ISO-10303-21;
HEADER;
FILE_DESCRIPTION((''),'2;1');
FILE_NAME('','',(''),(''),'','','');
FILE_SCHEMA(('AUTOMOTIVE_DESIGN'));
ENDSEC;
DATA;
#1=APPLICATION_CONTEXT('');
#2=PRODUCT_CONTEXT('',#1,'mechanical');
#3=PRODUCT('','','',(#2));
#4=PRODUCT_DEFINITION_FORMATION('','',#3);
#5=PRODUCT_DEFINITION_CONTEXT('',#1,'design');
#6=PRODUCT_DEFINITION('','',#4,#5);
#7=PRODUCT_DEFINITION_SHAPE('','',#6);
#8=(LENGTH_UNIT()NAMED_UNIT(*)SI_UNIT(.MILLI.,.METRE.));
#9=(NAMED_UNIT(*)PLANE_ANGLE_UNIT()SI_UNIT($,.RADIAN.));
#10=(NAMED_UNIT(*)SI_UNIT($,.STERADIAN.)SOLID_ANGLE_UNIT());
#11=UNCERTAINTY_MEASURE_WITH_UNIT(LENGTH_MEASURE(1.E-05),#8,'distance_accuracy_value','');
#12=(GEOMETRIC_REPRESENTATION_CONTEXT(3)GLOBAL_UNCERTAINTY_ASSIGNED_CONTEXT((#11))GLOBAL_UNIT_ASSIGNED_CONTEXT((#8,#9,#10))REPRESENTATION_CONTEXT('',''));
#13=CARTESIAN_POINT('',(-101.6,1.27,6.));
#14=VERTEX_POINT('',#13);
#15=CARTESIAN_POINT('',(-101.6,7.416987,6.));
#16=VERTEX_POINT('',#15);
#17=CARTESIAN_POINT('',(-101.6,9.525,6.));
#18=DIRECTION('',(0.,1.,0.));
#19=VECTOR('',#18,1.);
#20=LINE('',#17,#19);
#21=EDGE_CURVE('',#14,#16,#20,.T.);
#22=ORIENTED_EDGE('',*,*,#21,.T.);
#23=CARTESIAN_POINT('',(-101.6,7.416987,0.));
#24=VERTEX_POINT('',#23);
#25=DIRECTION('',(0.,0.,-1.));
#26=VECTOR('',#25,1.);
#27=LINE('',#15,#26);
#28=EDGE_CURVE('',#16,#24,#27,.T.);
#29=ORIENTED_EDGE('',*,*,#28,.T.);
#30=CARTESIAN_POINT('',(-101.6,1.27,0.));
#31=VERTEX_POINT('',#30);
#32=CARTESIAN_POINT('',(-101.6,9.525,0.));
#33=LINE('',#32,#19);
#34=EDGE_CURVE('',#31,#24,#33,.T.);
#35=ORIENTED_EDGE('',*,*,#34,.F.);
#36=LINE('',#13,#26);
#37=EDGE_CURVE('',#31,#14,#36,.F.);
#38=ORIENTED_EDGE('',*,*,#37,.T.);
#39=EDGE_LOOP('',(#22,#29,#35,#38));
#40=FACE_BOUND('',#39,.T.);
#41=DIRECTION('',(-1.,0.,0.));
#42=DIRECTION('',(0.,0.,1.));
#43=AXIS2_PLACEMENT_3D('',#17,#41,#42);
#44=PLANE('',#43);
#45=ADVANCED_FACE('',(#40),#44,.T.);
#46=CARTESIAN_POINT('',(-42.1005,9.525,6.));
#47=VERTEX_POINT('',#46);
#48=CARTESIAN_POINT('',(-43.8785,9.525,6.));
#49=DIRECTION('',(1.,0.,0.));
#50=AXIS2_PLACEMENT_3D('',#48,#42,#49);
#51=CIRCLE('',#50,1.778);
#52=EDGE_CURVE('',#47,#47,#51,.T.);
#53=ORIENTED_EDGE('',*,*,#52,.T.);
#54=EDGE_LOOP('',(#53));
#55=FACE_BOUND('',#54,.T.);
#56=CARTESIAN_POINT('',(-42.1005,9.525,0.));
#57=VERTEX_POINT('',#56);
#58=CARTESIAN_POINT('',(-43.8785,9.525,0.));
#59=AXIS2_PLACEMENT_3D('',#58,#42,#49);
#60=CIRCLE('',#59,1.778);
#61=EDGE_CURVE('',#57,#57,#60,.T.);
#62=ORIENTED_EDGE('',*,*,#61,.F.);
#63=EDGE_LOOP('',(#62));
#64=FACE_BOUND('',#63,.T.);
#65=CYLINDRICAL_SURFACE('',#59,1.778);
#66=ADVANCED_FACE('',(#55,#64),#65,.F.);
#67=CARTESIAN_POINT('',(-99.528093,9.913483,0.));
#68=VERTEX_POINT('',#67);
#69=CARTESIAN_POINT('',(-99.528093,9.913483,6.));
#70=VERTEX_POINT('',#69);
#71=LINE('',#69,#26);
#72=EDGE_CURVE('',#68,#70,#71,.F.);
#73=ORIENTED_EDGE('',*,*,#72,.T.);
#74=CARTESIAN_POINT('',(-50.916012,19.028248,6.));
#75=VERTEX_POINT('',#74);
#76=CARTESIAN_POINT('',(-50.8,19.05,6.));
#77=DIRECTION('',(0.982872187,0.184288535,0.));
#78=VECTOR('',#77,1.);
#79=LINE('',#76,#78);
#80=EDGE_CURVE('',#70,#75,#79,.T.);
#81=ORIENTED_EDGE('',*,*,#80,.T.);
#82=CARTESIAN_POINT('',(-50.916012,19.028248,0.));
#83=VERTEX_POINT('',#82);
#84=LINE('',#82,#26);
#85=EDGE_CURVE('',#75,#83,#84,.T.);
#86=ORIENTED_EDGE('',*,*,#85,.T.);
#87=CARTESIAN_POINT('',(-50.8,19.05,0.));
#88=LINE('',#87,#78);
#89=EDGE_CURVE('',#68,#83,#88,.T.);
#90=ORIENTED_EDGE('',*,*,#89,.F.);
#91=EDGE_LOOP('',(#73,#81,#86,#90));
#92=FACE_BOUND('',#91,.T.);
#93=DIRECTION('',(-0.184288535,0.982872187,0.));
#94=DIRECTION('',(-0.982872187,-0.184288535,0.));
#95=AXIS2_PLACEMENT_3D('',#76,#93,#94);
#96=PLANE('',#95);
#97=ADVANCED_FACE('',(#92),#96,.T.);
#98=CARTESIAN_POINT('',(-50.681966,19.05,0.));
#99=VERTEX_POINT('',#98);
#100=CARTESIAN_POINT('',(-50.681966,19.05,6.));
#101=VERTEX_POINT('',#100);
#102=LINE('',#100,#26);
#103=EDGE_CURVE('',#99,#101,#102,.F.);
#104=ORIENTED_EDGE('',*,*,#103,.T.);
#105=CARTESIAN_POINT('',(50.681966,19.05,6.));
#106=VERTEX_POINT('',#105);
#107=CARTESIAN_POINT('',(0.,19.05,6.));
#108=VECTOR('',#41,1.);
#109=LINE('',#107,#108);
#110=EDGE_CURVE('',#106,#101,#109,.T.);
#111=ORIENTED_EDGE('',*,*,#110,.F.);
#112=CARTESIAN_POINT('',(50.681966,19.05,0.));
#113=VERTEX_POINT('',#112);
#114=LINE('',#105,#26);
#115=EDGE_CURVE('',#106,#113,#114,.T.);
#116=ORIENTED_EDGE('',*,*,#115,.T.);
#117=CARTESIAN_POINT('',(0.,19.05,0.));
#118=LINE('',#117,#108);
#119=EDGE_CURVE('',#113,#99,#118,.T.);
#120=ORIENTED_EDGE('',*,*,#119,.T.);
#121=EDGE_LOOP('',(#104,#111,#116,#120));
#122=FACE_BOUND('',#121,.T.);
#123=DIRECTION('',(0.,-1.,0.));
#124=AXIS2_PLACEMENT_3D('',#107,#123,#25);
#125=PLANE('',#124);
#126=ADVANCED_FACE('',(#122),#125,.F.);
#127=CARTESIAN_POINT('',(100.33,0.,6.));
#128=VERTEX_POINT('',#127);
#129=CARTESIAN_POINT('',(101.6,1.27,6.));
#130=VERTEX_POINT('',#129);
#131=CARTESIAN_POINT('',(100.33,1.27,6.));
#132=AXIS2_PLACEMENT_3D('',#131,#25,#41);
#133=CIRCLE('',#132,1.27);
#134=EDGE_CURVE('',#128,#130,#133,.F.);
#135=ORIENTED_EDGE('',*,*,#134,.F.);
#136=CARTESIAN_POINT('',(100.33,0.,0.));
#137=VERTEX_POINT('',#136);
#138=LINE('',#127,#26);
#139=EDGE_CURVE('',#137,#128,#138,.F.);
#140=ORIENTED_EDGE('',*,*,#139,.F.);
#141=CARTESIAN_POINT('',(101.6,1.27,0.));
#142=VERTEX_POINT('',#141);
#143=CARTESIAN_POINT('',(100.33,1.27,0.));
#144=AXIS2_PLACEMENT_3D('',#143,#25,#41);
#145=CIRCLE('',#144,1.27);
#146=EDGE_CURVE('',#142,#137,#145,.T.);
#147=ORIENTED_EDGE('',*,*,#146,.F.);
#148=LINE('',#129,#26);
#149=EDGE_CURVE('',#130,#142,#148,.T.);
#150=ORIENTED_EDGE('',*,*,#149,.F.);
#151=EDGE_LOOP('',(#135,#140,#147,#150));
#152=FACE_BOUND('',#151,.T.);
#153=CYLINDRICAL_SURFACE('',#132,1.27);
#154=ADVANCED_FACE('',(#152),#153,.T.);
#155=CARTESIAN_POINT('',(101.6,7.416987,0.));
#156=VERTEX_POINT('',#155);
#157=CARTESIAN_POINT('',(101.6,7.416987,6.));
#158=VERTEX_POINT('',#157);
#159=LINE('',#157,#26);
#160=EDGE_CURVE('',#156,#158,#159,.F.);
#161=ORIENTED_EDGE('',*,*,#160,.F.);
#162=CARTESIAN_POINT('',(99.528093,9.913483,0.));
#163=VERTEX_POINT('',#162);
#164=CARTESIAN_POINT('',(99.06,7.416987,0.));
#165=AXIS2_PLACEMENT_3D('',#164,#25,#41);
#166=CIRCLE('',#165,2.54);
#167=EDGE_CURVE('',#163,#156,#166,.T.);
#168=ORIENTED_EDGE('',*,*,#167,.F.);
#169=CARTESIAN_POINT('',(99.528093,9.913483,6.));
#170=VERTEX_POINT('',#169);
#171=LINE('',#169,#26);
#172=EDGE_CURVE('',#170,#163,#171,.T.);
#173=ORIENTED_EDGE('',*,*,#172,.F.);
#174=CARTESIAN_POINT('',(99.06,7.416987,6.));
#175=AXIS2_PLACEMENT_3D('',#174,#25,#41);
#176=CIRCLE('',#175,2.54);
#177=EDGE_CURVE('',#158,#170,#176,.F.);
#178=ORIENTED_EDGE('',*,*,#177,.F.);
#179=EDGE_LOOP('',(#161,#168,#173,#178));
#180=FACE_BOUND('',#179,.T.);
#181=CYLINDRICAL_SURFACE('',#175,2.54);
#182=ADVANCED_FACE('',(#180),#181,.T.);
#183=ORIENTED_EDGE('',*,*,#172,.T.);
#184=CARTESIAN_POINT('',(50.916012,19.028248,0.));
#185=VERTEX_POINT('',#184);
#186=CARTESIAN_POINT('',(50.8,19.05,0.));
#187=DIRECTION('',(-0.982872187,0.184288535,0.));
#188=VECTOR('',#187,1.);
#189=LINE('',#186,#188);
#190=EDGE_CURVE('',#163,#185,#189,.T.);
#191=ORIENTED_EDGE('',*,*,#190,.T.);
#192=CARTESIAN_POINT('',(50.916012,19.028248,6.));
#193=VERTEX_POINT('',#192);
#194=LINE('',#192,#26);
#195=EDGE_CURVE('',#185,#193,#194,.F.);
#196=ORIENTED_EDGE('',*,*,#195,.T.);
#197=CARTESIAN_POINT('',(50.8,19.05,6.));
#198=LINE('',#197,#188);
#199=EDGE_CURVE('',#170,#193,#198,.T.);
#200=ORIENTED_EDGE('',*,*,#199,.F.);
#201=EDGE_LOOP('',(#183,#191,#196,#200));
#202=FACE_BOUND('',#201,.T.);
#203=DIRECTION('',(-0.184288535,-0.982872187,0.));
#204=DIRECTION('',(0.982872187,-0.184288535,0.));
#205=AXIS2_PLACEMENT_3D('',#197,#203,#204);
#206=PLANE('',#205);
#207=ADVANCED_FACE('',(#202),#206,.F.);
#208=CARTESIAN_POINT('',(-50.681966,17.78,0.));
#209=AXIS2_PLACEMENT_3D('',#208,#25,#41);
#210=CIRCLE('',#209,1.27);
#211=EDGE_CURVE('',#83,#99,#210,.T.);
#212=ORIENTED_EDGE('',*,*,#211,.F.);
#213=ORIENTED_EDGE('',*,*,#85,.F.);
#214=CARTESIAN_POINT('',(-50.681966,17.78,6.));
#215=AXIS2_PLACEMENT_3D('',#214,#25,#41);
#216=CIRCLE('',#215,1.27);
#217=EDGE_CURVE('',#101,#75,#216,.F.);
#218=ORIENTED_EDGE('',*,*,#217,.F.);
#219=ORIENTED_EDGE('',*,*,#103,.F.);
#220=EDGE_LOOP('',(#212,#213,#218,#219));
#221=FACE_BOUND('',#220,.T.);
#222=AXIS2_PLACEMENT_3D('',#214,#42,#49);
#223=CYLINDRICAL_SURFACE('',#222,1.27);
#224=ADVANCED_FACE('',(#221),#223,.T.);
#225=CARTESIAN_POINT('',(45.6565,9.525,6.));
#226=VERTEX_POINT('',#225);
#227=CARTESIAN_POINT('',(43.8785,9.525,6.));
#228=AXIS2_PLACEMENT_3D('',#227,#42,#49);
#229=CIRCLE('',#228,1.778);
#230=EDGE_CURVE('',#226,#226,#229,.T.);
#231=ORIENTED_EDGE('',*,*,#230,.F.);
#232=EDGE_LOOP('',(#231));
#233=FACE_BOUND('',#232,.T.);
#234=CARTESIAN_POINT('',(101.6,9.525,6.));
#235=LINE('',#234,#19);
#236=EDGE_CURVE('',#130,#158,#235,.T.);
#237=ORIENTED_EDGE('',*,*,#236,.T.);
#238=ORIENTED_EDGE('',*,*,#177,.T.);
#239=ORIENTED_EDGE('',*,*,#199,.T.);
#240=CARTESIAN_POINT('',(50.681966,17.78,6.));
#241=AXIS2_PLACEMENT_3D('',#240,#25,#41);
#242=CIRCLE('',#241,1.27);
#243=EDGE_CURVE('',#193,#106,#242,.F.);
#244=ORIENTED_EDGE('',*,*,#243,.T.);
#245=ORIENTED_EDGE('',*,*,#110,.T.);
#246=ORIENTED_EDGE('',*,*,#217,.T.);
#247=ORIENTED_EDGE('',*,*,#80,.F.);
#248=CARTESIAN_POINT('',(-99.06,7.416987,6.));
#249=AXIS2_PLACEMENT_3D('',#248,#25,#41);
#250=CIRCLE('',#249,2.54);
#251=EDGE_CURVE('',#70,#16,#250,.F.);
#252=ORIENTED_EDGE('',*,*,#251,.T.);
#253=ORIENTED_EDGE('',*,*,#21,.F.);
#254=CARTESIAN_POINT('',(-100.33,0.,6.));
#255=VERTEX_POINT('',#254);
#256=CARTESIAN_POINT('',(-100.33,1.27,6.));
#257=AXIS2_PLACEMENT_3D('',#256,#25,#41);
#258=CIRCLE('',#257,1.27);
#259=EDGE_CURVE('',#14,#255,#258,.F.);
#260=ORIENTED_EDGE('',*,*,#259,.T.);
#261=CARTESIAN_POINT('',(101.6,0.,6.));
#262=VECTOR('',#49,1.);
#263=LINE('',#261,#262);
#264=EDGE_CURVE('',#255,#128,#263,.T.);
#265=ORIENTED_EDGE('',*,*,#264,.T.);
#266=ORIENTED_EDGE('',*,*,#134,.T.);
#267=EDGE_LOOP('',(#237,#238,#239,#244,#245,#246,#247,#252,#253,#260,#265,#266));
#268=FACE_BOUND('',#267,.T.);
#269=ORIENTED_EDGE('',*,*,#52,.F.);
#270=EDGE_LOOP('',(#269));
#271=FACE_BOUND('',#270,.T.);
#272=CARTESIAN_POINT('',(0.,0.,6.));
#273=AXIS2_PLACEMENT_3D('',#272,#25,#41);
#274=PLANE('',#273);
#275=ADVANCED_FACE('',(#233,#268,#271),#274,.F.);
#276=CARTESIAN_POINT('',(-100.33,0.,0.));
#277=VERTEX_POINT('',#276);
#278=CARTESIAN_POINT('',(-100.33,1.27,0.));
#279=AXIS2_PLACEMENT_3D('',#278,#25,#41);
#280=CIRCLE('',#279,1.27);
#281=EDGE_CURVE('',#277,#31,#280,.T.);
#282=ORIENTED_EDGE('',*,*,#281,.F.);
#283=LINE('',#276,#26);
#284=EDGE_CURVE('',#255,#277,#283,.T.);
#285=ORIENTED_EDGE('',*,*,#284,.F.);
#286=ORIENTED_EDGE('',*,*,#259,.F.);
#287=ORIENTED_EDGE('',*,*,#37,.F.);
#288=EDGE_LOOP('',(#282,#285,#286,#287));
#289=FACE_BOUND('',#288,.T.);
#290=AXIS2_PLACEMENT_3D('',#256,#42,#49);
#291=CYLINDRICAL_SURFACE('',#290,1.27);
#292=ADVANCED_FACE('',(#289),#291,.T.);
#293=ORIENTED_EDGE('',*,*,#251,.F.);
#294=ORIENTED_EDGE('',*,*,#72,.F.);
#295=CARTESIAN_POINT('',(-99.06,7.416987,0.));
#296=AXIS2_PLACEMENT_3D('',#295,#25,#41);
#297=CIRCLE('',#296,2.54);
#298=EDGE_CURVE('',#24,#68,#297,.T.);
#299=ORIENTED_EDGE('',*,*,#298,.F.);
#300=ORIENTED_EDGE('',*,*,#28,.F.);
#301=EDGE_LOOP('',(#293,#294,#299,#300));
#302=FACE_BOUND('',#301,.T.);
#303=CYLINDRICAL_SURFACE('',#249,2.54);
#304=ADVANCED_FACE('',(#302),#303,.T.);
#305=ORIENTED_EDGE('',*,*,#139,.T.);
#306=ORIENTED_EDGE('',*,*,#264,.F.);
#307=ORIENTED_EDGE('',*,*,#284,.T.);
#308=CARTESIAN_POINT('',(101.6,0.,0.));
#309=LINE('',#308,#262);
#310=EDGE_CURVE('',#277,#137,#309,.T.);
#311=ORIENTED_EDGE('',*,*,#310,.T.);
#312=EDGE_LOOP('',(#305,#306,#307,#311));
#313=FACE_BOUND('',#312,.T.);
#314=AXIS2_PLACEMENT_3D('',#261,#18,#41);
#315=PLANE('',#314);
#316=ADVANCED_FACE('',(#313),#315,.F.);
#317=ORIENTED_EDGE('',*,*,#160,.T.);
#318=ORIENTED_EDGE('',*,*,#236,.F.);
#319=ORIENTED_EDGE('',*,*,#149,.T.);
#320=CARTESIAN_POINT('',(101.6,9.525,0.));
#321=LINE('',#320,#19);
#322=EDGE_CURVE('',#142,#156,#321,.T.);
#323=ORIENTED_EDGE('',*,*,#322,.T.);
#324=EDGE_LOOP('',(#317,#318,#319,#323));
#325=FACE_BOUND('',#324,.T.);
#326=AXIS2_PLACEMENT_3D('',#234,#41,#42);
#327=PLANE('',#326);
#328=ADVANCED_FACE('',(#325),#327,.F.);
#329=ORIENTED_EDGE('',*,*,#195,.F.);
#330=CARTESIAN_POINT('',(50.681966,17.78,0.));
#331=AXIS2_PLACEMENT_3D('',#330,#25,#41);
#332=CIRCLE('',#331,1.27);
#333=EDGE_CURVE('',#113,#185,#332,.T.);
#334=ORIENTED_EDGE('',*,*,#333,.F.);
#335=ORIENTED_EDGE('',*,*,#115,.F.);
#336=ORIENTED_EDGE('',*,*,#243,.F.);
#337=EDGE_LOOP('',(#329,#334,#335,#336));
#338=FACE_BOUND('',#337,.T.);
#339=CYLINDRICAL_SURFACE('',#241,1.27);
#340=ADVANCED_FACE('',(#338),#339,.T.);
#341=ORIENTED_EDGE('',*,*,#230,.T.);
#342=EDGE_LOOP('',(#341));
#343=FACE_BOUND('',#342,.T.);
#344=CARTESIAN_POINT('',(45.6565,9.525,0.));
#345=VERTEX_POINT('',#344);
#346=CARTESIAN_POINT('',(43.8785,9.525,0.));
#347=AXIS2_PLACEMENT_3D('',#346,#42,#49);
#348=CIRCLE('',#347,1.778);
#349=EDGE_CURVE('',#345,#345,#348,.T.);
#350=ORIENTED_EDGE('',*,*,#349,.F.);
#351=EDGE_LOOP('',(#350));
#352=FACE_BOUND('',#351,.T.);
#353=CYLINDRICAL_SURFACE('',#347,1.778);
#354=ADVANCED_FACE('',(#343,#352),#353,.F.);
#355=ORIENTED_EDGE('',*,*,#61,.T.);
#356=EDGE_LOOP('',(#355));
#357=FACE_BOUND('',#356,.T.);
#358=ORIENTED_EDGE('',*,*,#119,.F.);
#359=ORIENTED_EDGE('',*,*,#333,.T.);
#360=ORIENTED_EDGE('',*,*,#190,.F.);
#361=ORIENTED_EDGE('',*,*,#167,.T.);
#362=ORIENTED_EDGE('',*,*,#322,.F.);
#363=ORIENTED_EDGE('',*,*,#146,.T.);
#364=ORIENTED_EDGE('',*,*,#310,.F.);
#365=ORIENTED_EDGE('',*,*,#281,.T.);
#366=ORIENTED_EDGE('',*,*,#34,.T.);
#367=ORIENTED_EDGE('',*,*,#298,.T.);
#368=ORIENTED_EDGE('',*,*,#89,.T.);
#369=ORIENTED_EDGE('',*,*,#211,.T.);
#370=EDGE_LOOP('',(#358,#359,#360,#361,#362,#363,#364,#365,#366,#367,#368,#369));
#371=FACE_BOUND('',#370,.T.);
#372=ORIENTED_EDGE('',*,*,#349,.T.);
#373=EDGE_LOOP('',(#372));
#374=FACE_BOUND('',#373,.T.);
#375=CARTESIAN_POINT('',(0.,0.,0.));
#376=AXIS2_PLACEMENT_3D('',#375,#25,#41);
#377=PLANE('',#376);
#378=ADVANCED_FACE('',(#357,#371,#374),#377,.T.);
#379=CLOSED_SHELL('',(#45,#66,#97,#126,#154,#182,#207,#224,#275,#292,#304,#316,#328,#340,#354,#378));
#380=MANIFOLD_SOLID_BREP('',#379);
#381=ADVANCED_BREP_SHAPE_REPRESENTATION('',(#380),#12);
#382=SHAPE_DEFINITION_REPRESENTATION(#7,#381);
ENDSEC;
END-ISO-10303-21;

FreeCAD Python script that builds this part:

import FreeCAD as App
import Part
import Sketcher
Q = App.Units.Quantity


def edges_at(feature, points):
    """Names of the edges that pass closest to the given points."""
    edges = feature.Shape.Edges
    near = lambda p: min(range(len(edges)), key=lambda i: edges[i].distToShape(Part.Vertex(*p))[0])
    return sorted({f"Edge{near(p) + 1}" for p in points})

doc = App.newDocument("Part")
body = doc.addObject("PartDesign::Body", "Body")

sketch1 = doc.addObject("Sketcher::SketchObject", "Sketch")
body.addObject(sketch1)
sketch1.AttachmentSupport = (doc.XY_Plane, [""])
sketch1.MapMode = "FlatFace"
sketch1.addGeometry([
    Part.LineSegment(App.Vector(0, 19, 0), App.Vector(0, 0, 0)),
    Part.LineSegment(App.Vector(0, 0, 0), App.Vector(102, 0, 0)),
    Part.LineSegment(App.Vector(102, 0, 0), App.Vector(102, 10, 0)),
    Part.LineSegment(App.Vector(102, 10, 0), App.Vector(51, 19, 0)),
    Part.LineSegment(App.Vector(51, 19, 0), App.Vector(0, 19, 0)),
], False)
sketch1.addConstraint([
    Sketcher.Constraint("Coincident", 0, 2, 1, 1),
    Sketcher.Constraint("Coincident", 1, 2, 2, 1),
    Sketcher.Constraint("Coincident", 2, 2, 3, 1),
    Sketcher.Constraint("Coincident", 3, 2, 4, 1),
    Sketcher.Constraint("Coincident", 4, 2, 0, 1),
    Sketcher.Constraint("Vertical", 0),
    Sketcher.Constraint("Horizontal", 1),
    Sketcher.Constraint("Vertical", 2),
    Sketcher.Constraint("Horizontal", 4),
    Sketcher.Constraint("Coincident", 0, 2, -1, 1),
    Sketcher.Constraint("DistanceX", 1, 1, 1, 2, Q("4 in")),
    Sketcher.Constraint("DistanceX", 4, 2, 4, 1, Q("2 in")),
    Sketcher.Constraint("DistanceY", 0, 2, 0, 1, Q("0.75 in")),
    Sketcher.Constraint("DistanceY", 2, 1, 2, 2, Q("0.375 in")),
])
pad1 = doc.addObject("PartDesign::Pad", "Pad")
body.addObject(pad1)
pad1.Profile = sketch1
pad1.Length = 6
doc.recompute()

mirrored = doc.addObject("PartDesign::Mirrored", "Mirrored")
body.addObject(mirrored)
mirrored.Originals = [pad1]
mirrored.MirrorPlane = (doc.YZ_Plane, [""])
body.Tip = mirrored
doc.recompute()

fillet = doc.addObject("PartDesign::Fillet", "Fillet")
body.addObject(fillet)
fillet.Base = (mirrored, edges_at(mirrored, [(-101.6, 9.525, 3), (101.6, 9.525, 3)]))
fillet.Radius = Q("0.1 in")
doc.recompute()

fillet2 = doc.addObject("PartDesign::Fillet", "Fillet001")
body.addObject(fillet2)
fillet2.Base = (fillet, edges_at(fillet, [
    (-101.6, 0, 3),
    (-50.8, 19.05, 3),
    (50.8, 19.05, 3),
    (101.6, 0, 3),
]))
fillet2.Radius = Q("0.05 in")

sketch2 = doc.addObject("Sketcher::SketchObject", "Sketch001")
body.addObject(sketch2)
sketch2.AttachmentSupport = (doc.XY_Plane, [""])
sketch2.MapMode = "FlatFace"
sketch2.AttachmentOffset = App.Placement(App.Vector(0, 0, 6), App.Rotation())
sketch2.addGeometry([
    Part.Circle(App.Vector(-43.9, 9.5, 0), App.Vector(0, 0, 1), 1.8),
    Part.Circle(App.Vector(43.9, 9.5, 0), App.Vector(0, 0, 1), 1.8),
], False)
sketch2.addConstraint([
    Sketcher.Constraint("Equal", 0, 1),
    Sketcher.Constraint("Symmetric", 0, 3, 1, 3, -2),
    Sketcher.Constraint("Diameter", 0, Q("0.14 in")),
    Sketcher.Constraint("DistanceY", -1, 1, 0, 3, Q("0.375 in")),
    Sketcher.Constraint("DistanceX", 0, 3, 1, 3, Q("3.455 in")),
])
pocket1 = doc.addObject("PartDesign::Pocket", "Pocket")
body.addObject(pocket1)
pocket1.Profile = sketch2
pocket1.Type = "ThroughAll"

doc.recompute()
